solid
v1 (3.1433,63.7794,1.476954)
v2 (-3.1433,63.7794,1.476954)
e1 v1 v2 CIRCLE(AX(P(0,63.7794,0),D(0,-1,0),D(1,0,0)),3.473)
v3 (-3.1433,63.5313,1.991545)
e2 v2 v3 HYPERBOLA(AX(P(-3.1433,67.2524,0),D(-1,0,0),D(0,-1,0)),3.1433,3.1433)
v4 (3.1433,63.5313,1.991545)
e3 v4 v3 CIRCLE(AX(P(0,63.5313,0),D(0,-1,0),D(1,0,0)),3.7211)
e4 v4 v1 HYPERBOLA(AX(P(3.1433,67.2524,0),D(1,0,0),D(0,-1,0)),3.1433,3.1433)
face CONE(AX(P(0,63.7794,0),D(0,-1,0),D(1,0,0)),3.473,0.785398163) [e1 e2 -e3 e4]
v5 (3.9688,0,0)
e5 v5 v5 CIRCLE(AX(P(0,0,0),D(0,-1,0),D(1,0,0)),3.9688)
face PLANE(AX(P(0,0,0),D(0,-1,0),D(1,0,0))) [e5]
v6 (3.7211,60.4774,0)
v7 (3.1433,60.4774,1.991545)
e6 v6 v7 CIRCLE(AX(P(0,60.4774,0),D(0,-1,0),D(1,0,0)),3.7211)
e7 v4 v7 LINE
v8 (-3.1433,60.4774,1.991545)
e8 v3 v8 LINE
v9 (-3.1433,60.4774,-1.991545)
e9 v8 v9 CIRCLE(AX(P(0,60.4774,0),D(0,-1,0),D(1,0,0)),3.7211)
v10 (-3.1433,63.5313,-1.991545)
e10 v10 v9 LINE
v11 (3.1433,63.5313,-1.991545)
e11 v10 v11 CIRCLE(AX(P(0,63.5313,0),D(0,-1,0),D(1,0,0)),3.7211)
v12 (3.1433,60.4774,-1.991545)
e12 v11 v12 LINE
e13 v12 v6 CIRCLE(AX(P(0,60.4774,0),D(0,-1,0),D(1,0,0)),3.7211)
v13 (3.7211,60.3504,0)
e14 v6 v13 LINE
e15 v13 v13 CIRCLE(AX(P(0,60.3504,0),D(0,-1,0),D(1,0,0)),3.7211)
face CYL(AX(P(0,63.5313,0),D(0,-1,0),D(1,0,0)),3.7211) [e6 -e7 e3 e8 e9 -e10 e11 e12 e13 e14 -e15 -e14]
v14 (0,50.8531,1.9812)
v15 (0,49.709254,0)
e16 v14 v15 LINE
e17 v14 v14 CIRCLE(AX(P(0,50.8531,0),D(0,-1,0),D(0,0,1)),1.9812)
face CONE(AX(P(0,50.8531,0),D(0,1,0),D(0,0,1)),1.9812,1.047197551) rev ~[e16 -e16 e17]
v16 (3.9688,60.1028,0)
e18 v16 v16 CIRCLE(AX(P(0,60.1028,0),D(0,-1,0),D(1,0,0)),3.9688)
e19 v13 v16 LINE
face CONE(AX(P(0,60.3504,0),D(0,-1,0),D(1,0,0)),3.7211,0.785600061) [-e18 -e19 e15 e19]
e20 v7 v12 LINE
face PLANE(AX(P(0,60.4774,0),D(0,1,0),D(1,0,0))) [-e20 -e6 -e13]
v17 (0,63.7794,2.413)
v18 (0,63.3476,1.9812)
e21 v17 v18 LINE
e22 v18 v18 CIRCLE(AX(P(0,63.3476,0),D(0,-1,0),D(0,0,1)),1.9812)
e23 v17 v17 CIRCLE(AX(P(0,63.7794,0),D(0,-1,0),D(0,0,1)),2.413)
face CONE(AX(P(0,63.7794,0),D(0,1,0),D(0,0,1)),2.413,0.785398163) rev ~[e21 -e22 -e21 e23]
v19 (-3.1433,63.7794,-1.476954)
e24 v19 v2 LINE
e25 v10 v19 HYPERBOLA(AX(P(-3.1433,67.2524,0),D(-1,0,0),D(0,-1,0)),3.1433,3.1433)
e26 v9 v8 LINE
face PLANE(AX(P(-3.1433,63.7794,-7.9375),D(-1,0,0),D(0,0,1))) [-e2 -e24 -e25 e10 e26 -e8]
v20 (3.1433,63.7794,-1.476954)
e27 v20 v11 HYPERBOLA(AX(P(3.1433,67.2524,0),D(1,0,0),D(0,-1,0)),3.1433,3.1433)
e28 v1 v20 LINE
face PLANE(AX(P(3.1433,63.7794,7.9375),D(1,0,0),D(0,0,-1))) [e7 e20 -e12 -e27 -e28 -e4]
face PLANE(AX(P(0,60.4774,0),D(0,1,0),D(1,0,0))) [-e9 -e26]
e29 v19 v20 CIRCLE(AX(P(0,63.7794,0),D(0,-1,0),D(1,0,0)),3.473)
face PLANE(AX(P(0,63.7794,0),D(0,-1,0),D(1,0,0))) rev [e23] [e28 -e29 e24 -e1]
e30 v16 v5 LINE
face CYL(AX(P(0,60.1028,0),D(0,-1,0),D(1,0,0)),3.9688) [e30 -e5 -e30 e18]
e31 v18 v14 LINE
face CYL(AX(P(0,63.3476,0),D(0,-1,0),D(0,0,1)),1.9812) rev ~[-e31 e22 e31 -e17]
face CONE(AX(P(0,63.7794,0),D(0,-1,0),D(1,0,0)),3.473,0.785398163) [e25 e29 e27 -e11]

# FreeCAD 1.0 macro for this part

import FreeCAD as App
import Part
import Sketcher

V = App.Vector
Q = App.Units.Quantity


def add_polygon(sketch, points):
    """Adds a closed chain of lines whose ends are joined by coincident constraints."""
    first, n = sketch.GeometryCount, len(points)
    for a, b in zip(points, points[1:] + points[:1]):
        sketch.addGeometry(Part.LineSegment(App.Vector(*a, 0), App.Vector(*b, 0)), False)
    for i in range(n):
        sketch.addConstraint(Sketcher.Constraint("Coincident", first + i, 2, first + (i + 1) % n, 1))

doc = App.newDocument("Part")
body = doc.addObject("PartDesign::Body", "Body")

# Sketch on XY plane
sketch1 = doc.addObject("Sketcher::SketchObject", "Sketch")
body.addObject(sketch1)
sketch1.AttachmentSupport = (doc.XY_Plane, [""])
sketch1.MapMode = "FlatFace"
add_polygon(sketch1, [(0, 63.78), (0, 0), (3.97, 0), (3.97, 60.1), (3.72, 60.35), (3.72, 63.53), (3.47, 63.78)])  # lines 0-6
sketch1.addConstraint(Sketcher.Constraint("Vertical", 0))
sketch1.addConstraint(Sketcher.Constraint("Horizontal", 1))
sketch1.addConstraint(Sketcher.Constraint("Vertical", 2))
sketch1.addConstraint(Sketcher.Constraint("Vertical", 4))
sketch1.addConstraint(Sketcher.Constraint("Horizontal", 6))
sketch1.addConstraint(Sketcher.Constraint("Coincident", 0, 2, -1, 1))
sketch1.addConstraint(Sketcher.Constraint("Parallel", 3, 5))
sketch1.addConstraint(Sketcher.Constraint("Angle", 5, Q("135 deg")))
sketch1.addConstraint(Sketcher.Constraint("DistanceX", 1, 1, 1, 2, Q("0.156252 in")))
sketch1.addConstraint(Sketcher.Constraint("DistanceY", 0, 2, 0, 1, Q("2.511 in")))
sketch1.addConstraint(Sketcher.Constraint("DistanceY", -1, 1, 3, 2, Q("2.376 in")))
sketch1.addConstraint(Sketcher.Constraint("Distance", 3, Q("0.0138 in")))
sketch1.addConstraint(Sketcher.Constraint("DistanceX", 6, 2, 6, 1, 3.473))
revolution = doc.addObject("PartDesign::Revolution", "Revolution")
body.addObject(revolution)
revolution.Profile = sketch1
revolution.ReferenceAxis = (sketch1, ["V_Axis"])
revolution.Angle = 360

# Sketch on XZ plane
sketch2 = doc.addObject("Sketcher::SketchObject", "Sketch001")
body.addObject(sketch2)
sketch2.AttachmentSupport = (doc.XZ_Plane, [""])
sketch2.MapMode = "FlatFace"
sketch2.AttachmentOffset = App.Placement(V(0, 0, -2.511 * 25.4), App.Rotation())
sketch2.addGeometry(Part.Circle(V(0, 0, 0), V(0, 0, 1), 2), False)
sketch2.addConstraint(Sketcher.Constraint("Coincident", 0, 3, -1, 1))
sketch2.addConstraint(Sketcher.Constraint("Diameter", 0, Q("0.156 in")))
doc.recompute()
hole = doc.addObject("PartDesign::Hole", "Hole")
body.addObject(hole)
hole.Profile = sketch2
hole.ThreadType = "None"
hole.Diameter = Q("0.156 in")
hole.DepthType = "Dimension"
hole.Depth = Q("0.5089094 in")
hole.DrillPoint = "Angled"
hole.DrillPointAngle = 120
hole.HoleCutType = "Countersink"
hole.HoleCutDiameter = Q("0.19 in")
hole.HoleCutCountersinkAngle = 90
hole.Reversed = True

# Sketch on XZ plane
sketch3 = doc.addObject("Sketcher::SketchObject", "Sketch002")
body.addObject(sketch3)
sketch3.AttachmentSupport = (doc.XZ_Plane, [""])
sketch3.MapMode = "FlatFace"
sketch3.AttachmentOffset = App.Placement(V(0, 0, -2.511 * 25.4), App.Rotation())
add_polygon(sketch3, [(-6, -16), (-6, 16), (6, 16), (6, -16)])  # lines 0-3
add_polygon(sketch3, [(3, 8), (-3, 8), (-3, -8), (3, -8)])  # lines 4-7
sketch3.addConstraint(Sketcher.Constraint("Vertical", 0))
sketch3.addConstraint(Sketcher.Constraint("Horizontal", 1))
sketch3.addConstraint(Sketcher.Constraint("Vertical", 2))
sketch3.addConstraint(Sketcher.Constraint("Horizontal", 3))
sketch3.addConstraint(Sketcher.Constraint("Horizontal", 4))
sketch3.addConstraint(Sketcher.Constraint("Vertical", 5))
sketch3.addConstraint(Sketcher.Constraint("Horizontal", 6))
sketch3.addConstraint(Sketcher.Constraint("Vertical", 7))
sketch3.addConstraint(Sketcher.Constraint("Symmetric", 0, 2, 2, 2, -1, 1))
sketch3.addConstraint(Sketcher.Constraint("Symmetric", 4, 2, 6, 2, -1, 1))
sketch3.addConstraint(Sketcher.Constraint("DistanceY", 0, 1, 0, 2, Q("1.25 in")))
sketch3.addConstraint(Sketcher.Constraint("DistanceX", 1, 1, 1, 2, Q("0.495 in")))
sketch3.addConstraint(Sketcher.Constraint("DistanceY", 5, 2, 5, 1, Q("0.625 in")))
sketch3.addConstraint(Sketcher.Constraint("DistanceX", 4, 2, 4, 1, Q("0.2475 in")))
pocket1 = doc.addObject("PartDesign::Pocket", "Pocket")
body.addObject(pocket1)
pocket1.Profile = sketch3
pocket1.Length = Q("0.13 in")
pocket1.Reversed = True

doc.recompute()
